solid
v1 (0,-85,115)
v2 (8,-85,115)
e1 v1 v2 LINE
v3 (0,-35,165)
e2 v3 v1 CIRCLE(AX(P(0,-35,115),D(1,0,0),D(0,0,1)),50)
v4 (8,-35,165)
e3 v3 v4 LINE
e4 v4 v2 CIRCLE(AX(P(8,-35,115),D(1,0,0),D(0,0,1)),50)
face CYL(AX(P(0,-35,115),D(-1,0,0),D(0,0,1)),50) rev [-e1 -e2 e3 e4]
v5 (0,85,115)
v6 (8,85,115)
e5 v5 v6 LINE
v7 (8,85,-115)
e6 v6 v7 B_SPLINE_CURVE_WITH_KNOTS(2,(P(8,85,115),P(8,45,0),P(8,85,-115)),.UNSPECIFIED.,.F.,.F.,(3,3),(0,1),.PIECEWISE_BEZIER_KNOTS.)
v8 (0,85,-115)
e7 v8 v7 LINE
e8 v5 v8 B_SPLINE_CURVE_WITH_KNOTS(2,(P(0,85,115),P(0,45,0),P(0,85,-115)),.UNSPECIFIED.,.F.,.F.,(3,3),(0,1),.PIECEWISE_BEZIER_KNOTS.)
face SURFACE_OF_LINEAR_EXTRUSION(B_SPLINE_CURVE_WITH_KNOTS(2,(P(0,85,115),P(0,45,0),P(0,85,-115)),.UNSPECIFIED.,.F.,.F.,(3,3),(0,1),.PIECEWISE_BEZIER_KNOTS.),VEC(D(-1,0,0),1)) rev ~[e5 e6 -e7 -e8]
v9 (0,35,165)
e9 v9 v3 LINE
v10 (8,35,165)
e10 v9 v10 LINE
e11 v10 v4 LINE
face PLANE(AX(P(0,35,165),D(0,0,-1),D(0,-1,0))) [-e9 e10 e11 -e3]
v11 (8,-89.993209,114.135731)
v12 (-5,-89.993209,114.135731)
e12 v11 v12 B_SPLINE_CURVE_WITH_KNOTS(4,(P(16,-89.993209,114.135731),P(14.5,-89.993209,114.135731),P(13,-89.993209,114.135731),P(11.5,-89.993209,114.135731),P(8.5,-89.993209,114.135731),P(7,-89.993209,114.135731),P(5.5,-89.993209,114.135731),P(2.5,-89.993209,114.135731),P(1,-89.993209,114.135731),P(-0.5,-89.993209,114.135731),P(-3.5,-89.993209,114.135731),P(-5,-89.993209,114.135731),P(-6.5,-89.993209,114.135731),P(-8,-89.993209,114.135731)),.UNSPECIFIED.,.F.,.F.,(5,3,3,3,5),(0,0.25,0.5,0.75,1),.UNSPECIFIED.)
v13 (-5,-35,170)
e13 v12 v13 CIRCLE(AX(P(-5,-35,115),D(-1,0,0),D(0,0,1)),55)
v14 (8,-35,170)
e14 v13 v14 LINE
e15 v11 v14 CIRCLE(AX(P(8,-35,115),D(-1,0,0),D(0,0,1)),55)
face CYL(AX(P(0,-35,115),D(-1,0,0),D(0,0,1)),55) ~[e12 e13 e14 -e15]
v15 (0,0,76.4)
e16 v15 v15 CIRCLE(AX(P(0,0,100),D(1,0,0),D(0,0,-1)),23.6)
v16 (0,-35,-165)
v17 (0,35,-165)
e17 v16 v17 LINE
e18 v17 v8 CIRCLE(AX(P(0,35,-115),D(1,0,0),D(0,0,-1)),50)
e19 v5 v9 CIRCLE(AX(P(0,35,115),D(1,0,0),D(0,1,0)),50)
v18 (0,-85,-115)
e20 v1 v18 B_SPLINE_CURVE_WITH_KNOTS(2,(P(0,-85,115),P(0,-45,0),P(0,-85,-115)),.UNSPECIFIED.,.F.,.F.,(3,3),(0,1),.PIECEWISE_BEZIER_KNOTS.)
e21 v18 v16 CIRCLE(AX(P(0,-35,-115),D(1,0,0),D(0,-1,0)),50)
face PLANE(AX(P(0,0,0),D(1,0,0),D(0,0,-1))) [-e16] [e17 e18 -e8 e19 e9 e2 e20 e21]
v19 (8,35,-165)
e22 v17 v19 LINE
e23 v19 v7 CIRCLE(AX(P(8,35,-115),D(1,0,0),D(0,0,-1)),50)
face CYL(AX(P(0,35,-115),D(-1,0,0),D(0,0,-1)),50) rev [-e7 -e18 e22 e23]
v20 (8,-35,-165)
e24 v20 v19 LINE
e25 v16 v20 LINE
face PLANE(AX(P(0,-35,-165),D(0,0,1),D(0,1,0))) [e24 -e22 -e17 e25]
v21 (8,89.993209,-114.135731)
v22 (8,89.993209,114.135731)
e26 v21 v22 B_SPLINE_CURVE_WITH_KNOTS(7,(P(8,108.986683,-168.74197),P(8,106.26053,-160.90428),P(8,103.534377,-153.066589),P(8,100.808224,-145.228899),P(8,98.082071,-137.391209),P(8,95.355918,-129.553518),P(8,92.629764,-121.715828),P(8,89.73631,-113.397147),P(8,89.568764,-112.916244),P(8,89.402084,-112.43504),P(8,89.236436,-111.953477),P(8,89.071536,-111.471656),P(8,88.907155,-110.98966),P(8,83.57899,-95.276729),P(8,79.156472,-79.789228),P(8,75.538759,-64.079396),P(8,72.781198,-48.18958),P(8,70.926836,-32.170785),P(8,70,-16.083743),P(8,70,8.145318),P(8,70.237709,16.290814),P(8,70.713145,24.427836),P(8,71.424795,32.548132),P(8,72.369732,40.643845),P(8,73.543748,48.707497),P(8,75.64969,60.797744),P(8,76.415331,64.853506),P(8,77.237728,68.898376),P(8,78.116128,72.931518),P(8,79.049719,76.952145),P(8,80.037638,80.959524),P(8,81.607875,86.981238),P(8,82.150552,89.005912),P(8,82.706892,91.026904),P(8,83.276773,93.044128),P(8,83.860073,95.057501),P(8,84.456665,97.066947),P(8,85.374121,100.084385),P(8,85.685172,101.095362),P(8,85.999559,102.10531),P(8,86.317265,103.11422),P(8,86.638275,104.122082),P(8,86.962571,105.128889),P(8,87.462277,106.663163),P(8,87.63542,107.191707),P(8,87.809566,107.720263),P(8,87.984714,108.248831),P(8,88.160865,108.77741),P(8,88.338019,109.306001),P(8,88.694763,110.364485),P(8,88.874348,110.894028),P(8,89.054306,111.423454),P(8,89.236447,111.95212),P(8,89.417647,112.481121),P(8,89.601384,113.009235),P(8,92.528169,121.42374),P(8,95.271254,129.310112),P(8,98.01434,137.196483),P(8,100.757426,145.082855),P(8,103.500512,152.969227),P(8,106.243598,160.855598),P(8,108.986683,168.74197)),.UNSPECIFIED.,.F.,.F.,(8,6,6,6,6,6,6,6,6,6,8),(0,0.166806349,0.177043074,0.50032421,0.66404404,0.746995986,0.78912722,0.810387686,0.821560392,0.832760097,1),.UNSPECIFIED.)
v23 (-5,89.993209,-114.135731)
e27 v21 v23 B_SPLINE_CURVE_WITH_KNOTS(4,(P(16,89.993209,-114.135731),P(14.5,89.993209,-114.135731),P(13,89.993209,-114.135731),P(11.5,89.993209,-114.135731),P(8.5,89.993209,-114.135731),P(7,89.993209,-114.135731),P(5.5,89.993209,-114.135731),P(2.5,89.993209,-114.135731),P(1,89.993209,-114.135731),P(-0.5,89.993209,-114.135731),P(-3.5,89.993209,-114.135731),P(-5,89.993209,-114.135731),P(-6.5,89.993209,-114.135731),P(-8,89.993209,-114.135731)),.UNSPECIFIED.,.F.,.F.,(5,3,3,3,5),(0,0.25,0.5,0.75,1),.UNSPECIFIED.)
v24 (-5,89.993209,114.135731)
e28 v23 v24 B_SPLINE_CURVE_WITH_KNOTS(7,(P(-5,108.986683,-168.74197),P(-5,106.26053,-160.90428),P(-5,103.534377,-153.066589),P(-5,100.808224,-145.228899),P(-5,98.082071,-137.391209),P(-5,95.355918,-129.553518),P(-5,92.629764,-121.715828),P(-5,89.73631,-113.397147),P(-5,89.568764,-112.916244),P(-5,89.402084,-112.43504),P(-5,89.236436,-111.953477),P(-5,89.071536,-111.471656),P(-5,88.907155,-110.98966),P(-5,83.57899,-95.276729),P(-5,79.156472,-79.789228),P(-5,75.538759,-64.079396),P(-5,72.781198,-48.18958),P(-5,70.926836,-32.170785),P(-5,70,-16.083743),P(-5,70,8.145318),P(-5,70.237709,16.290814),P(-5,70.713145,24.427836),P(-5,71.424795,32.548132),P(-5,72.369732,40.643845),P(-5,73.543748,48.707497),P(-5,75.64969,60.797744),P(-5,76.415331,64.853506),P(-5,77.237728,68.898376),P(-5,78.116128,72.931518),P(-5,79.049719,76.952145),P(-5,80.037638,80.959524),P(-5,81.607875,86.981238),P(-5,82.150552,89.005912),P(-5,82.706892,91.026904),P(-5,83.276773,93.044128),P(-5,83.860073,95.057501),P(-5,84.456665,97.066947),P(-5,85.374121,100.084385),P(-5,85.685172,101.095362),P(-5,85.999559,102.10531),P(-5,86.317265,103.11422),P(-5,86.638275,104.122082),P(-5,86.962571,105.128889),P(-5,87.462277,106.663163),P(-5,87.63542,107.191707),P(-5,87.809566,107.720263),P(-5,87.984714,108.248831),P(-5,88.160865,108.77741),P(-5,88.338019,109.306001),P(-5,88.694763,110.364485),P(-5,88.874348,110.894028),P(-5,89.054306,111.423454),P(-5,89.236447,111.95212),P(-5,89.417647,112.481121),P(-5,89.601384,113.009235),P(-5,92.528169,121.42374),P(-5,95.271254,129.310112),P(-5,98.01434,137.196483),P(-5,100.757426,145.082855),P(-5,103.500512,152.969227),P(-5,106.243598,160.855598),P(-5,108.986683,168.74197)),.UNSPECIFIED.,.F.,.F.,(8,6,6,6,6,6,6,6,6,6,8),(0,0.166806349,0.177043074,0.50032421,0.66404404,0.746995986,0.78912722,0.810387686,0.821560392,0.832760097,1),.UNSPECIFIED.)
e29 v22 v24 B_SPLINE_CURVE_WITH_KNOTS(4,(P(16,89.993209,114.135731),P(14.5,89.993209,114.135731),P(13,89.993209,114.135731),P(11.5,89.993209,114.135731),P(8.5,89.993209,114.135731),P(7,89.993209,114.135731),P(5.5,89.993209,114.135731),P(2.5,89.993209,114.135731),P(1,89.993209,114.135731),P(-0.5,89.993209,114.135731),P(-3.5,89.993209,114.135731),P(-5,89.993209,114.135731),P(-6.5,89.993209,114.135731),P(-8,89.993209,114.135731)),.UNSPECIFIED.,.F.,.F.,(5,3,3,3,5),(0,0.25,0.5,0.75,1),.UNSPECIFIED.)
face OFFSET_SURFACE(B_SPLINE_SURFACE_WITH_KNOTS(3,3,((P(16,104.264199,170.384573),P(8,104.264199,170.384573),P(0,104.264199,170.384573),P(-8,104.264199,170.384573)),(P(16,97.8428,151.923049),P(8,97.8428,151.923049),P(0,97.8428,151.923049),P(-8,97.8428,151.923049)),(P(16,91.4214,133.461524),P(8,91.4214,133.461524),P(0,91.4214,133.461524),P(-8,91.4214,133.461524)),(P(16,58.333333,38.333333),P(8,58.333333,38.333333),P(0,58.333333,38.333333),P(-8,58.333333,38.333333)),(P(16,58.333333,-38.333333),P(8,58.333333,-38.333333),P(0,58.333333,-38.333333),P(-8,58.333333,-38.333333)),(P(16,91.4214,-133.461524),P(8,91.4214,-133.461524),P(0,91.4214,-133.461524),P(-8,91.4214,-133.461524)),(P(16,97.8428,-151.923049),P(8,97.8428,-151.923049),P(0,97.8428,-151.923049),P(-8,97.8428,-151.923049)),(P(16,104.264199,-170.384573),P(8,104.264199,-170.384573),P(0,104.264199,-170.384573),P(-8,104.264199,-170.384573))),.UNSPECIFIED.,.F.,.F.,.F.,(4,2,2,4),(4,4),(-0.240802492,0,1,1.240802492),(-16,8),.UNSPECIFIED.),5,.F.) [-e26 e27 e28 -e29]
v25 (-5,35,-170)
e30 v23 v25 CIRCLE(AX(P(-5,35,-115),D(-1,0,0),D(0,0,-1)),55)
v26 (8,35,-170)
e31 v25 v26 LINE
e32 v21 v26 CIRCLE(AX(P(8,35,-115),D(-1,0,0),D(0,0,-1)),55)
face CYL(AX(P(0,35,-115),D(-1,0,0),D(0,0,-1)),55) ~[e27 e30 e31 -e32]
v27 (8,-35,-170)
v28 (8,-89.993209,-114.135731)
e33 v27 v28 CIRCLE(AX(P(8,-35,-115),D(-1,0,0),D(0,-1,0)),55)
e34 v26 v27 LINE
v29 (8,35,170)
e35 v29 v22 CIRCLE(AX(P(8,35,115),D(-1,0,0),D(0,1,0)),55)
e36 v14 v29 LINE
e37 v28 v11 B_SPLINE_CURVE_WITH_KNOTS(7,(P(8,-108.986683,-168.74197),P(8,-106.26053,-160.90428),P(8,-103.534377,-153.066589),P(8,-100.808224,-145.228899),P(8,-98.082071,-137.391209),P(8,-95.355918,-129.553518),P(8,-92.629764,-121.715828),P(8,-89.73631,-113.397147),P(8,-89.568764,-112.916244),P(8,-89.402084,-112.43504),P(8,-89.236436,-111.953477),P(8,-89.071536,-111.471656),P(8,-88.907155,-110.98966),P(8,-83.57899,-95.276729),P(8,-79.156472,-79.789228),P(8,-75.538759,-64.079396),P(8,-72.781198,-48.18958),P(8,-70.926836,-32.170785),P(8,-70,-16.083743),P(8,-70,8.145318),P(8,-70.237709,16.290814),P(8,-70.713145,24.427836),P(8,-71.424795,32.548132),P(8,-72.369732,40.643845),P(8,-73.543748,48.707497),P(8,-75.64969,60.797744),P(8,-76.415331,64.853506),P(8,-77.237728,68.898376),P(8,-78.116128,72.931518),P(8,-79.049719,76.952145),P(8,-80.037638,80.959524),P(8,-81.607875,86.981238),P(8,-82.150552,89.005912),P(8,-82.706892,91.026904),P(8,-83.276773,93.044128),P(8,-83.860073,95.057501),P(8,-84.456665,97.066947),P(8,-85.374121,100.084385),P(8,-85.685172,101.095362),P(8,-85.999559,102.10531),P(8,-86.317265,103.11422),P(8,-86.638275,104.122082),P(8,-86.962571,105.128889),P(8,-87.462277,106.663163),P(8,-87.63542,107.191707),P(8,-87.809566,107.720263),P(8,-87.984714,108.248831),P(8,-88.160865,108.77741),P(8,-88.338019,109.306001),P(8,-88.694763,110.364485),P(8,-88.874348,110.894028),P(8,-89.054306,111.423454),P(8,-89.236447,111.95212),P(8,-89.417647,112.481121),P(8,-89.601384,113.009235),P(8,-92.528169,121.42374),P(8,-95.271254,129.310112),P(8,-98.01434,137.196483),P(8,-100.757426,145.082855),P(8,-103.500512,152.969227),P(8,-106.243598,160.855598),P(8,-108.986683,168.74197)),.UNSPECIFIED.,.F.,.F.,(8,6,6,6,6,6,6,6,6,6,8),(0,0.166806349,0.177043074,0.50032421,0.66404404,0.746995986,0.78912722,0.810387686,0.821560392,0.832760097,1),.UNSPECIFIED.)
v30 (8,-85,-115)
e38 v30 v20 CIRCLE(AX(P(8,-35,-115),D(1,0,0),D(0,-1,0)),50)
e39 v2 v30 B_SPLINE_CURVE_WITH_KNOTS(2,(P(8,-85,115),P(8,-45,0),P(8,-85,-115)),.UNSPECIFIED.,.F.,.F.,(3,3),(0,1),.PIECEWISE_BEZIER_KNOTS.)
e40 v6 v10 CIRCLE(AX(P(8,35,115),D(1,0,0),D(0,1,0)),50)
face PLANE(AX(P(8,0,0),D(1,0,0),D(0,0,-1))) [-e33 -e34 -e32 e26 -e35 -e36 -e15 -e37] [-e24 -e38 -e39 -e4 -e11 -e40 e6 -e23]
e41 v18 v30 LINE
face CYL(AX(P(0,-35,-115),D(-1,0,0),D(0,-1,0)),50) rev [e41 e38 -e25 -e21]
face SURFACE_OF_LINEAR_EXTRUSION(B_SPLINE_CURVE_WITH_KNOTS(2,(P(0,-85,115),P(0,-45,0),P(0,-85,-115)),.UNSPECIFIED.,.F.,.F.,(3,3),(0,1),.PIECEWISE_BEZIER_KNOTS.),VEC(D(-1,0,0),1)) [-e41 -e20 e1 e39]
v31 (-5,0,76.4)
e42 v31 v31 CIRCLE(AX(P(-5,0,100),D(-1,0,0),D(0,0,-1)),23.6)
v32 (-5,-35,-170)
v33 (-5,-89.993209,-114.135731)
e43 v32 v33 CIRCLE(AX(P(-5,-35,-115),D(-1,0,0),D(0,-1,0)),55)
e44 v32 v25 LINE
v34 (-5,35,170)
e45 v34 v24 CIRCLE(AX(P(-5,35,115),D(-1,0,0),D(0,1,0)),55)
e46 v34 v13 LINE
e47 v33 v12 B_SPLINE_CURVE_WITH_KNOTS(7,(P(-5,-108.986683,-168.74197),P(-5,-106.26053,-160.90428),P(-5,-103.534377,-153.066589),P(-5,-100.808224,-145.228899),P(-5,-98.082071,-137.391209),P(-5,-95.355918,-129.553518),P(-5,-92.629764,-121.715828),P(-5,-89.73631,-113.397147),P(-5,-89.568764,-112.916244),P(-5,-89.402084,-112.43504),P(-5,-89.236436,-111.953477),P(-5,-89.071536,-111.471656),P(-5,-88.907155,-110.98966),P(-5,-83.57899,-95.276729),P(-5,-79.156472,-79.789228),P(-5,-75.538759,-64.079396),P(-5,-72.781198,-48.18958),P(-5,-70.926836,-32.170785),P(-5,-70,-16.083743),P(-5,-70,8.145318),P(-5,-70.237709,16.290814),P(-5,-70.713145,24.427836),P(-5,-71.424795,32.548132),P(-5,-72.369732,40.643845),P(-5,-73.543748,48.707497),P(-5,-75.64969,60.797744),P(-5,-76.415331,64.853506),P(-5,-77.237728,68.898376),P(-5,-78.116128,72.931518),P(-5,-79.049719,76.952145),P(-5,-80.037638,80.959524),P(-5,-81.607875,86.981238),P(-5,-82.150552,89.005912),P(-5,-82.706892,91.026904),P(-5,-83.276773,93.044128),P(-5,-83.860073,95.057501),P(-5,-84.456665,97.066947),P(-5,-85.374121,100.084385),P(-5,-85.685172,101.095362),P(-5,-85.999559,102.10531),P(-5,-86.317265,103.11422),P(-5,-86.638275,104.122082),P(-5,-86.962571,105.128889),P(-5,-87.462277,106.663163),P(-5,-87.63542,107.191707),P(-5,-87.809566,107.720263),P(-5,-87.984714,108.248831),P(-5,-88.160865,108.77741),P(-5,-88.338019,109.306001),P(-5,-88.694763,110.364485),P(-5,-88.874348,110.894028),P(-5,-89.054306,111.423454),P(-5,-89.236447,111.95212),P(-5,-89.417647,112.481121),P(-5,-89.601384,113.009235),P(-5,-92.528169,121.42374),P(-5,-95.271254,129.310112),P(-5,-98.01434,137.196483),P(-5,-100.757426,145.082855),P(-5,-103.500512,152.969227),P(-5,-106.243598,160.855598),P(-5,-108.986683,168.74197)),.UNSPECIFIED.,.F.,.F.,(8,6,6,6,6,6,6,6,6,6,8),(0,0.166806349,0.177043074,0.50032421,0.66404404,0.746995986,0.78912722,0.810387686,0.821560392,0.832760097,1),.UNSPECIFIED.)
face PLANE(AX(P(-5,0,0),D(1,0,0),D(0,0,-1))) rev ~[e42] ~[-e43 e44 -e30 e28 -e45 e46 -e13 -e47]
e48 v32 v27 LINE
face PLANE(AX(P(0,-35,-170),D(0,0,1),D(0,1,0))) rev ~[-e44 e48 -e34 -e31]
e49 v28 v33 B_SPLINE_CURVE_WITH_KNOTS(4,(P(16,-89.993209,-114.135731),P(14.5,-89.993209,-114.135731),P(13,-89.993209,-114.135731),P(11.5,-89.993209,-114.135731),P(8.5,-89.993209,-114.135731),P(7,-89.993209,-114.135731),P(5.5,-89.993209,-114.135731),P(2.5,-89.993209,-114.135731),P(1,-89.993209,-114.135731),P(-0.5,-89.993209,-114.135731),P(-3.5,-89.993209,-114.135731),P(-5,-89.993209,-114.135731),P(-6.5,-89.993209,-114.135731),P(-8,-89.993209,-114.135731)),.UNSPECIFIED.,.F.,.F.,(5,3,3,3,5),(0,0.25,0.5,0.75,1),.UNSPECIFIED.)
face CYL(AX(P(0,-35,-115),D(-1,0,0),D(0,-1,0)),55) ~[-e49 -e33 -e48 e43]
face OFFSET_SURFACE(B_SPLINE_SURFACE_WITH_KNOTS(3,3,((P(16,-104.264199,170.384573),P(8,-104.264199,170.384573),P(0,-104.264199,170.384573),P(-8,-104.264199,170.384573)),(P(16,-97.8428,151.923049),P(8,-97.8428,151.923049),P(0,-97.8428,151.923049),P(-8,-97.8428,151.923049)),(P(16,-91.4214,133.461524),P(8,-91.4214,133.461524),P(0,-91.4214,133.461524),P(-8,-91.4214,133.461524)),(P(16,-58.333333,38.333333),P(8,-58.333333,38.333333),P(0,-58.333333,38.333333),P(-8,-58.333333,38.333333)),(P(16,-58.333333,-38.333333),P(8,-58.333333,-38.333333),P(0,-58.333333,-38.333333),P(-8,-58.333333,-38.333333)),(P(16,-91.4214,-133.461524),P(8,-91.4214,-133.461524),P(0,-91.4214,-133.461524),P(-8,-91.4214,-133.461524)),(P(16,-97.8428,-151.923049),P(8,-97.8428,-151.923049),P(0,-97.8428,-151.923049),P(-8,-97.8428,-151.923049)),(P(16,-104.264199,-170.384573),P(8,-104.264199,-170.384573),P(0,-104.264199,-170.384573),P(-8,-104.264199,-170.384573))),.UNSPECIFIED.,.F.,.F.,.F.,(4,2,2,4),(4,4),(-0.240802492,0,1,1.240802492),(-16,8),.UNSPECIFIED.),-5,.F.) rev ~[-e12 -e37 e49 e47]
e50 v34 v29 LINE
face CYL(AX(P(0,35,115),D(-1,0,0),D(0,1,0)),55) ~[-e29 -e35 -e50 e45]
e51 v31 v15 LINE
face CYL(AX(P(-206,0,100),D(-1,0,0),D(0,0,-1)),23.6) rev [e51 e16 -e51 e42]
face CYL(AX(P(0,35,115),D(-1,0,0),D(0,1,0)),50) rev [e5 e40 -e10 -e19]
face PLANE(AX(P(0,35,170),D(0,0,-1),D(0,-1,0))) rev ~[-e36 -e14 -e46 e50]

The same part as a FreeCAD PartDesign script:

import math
import FreeCAD as App
import Part
import Sketcher

V = App.Vector
Q = App.Units.Quantity


def faces_at(feature, points):
    """Names of the faces that lie closest to the given points."""
    faces = feature.Shape.Faces
    near = lambda p: min(range(len(faces)), key=lambda i: faces[i].distToShape(Part.Vertex(*p))[0])
    return sorted({f"Face{near(p) + 1}" for p in points})

doc = App.newDocument("Part")
body = doc.addObject("PartDesign::Body", "Body")

sketch1 = body.newObject("Sketcher::SketchObject", "Sketch")
sketch1.AttachmentSupport = (doc.getObject("YZ_Plane"), [""])
sketch1.MapMode = "FlatFace"
sketch1.addGeometry([
    Part.LineSegment(V(-35, -165, 0), V(35, -165, 0)),
    Part.ArcOfCircle(Part.Circle(V(35, -115, 0), V(0, 0, 1), 50), math.radians(-90), math.radians(0)),
    Part.BSplineCurve([V(85, 115, 0), V(45, 0, 0), V(85, -115, 0)], [3, 3], [0, 1], False, 2, [1, 1, 1], False),
    Part.ArcOfCircle(Part.Circle(V(35, 115, 0), V(0, 0, 1), 50), math.radians(0), math.radians(90)),
    Part.LineSegment(V(35, 165, 0), V(-35, 165, 0)),
    Part.ArcOfCircle(Part.Circle(V(-35, 115, 0), V(0, 0, 1), 50), math.radians(90), math.radians(180)),
    Part.BSplineCurve([V(-85, 115, 0), V(-45, 0, 0), V(-85, -115, 0)], [3, 3], [0, 1], False, 2, [1, 1, 1], False),
    Part.ArcOfCircle(Part.Circle(V(-35, -115, 0), V(0, 0, 1), 50), math.radians(-180), math.radians(-90)),
    Part.Circle(V(0, 100, 0), V(0, 0, 1), 23.6),
], False)
sketch1.addConstraint([
    Sketcher.Constraint("Block", 2),
    Sketcher.Constraint("Block", 6),
    Sketcher.Constraint("Coincident", 0, 2, 1, 1),
    Sketcher.Constraint("Coincident", 1, 2, 2, 2),
    Sketcher.Constraint("Coincident", 2, 1, 3, 1),
    Sketcher.Constraint("Coincident", 3, 2, 4, 1),
    Sketcher.Constraint("Coincident", 4, 2, 5, 1),
    Sketcher.Constraint("Coincident", 5, 2, 6, 1),
    Sketcher.Constraint("Coincident", 6, 2, 7, 1),
    Sketcher.Constraint("Coincident", 7, 2, 0, 1),
    Sketcher.Constraint("Horizontal", 0),
    Sketcher.Constraint("Horizontal", 4),
    Sketcher.Constraint("PointOnObject", 8, 3, -2),
    Sketcher.Constraint("Radius", 1, Q("50 mm")),
    Sketcher.Constraint("Radius", 3, Q("50 mm")),
    Sketcher.Constraint("Radius", 5, Q("50 mm")),
    Sketcher.Constraint("Radius", 7, Q("50 mm")),
    Sketcher.Constraint("Diameter", 8, Q("47.2 mm")),
    Sketcher.Constraint("DistanceX", 0, 1, 0, 2, Q("70 mm")),
    Sketcher.Constraint("DistanceX", 4, 2, 4, 1, Q("70 mm")),
    Sketcher.Constraint("DistanceY", 1, 3, -1, 1, Q("115 mm")),
    Sketcher.Constraint("DistanceY", -1, 1, 3, 3, Q("115 mm")),
    Sketcher.Constraint("DistanceY", -1, 1, 8, 3, Q("100 mm")),
    Sketcher.Constraint("DistanceX", -1, 1, 0, 2, Q("35 mm")),
    Sketcher.Constraint("DistanceX", -1, 1, 3, 2, Q("35 mm")),
])
pad1 = body.newObject("PartDesign::Pad", "Pad")
pad1.Profile = sketch1
pad1.Length = 8
doc.recompute()

thickness = body.newObject("PartDesign::Thickness", "Thickness")
thickness.Base = (pad1, faces_at(pad1, [(8, 0, 0)]))
thickness.Value = 5
thickness.Reversed = False
thickness.Join = "Intersection"

sketch2 = body.newObject("Sketcher::SketchObject", "Sketch001")
sketch2.AttachmentSupport = (doc.getObject("YZ_Plane"), [""])
sketch2.MapMode = "FlatFace"
sketch2.AttachmentOffset = App.Placement(V(0, 0, -206), App.Rotation())
sketch2.addGeometry(Part.Circle(V(0, 100, 0), V(0, 0, 1), 24), False)
sketch2.addConstraint([
    Sketcher.Constraint("PointOnObject", 0, 3, -2),
    Sketcher.Constraint("Diameter", 0, Q("47.2 mm")),
    Sketcher.Constraint("DistanceY", -1, 1, 0, 3, Q("100 mm")),
])
pocket1 = body.newObject("PartDesign::Pocket", "Pocket")
pocket1.Profile = sketch2
pocket1.Length = 214
pocket1.Reversed = True

doc.recompute()
